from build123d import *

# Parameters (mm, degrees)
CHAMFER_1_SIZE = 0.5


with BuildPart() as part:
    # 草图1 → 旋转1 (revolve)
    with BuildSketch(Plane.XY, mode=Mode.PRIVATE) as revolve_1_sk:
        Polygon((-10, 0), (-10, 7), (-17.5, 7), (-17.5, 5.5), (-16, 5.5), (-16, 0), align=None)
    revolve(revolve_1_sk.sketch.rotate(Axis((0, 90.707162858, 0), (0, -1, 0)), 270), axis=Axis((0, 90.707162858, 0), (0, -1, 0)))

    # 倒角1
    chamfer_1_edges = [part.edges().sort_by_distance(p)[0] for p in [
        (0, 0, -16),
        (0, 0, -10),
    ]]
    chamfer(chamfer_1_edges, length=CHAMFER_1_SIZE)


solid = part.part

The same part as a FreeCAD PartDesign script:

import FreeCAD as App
import Part
import Sketcher
Q = App.Units.Quantity


def edges_at(feature, points):
    """Names of the edges that pass closest to the given points."""
    edges = feature.Shape.Edges
    near = lambda p: min(range(len(edges)), key=lambda i: edges[i].distToShape(Part.Vertex(*p))[0])
    return sorted({f"Edge{near(p) + 1}" for p in points})


def add_polygon(sketch, points):
    """Adds a closed chain of lines whose ends are joined by coincident constraints."""
    first, n = sketch.GeometryCount, len(points)
    for a, b in zip(points, points[1:] + points[:1]):
        sketch.addGeometry(Part.LineSegment(App.Vector(*a, 0), App.Vector(*b, 0)), False)
    for i in range(n):
        sketch.addConstraint(Sketcher.Constraint("Coincident", first + i, 2, first + (i + 1) % n, 1))

doc = App.newDocument("Part")
body = doc.addObject("PartDesign::Body", "Body")

sketch1 = body.newObject("Sketcher::SketchObject", "Sketch")
sketch1.AttachmentSupport = (doc.getObject("XY_Plane"), [""])
sketch1.MapMode = "FlatFace"
add_polygon(sketch1, [(-10, 0), (-10, 7), (-17.5, 7), (-17.5, 5.5), (-16, 5.5), (-16, 0)])
sketch1.addConstraint([
    Sketcher.Constraint("Vertical", 0),
    Sketcher.Constraint("Horizontal", 1),
    Sketcher.Constraint("Vertical", 2),
    Sketcher.Constraint("Horizontal", 3),
    Sketcher.Constraint("Vertical", 4),
    Sketcher.Constraint("Horizontal", 5),
    Sketcher.Constraint("PointOnObject", 4, 2, -1),
    Sketcher.Constraint("Equal", 3, 2),
    Sketcher.Constraint("DistanceX", 5, 1, 5, 2, Q("6 mm")),
    Sketcher.Constraint("DistanceY", 0, 1, 0, 2, Q("7 mm")),
    Sketcher.Constraint("DistanceX", 1, 2, 1, 1, Q("7.5 mm")),
    Sketcher.Constraint("DistanceX", 0, 2, -1, 1, Q("10 mm")),
])
revolution = body.newObject("PartDesign::Revolution", "Revolution")
revolution.Profile = sketch1
revolution.ReferenceAxis = (sketch1, ["V_Axis"])
revolution.Angle = 360
doc.recompute()

chamfer = body.newObject("PartDesign::Chamfer", "Chamfer")
chamfer.Base = (revolution, edges_at(revolution, [(0, 0, -16), (0, 0, -10)]))
chamfer.Size = 0.5

doc.recompute()
